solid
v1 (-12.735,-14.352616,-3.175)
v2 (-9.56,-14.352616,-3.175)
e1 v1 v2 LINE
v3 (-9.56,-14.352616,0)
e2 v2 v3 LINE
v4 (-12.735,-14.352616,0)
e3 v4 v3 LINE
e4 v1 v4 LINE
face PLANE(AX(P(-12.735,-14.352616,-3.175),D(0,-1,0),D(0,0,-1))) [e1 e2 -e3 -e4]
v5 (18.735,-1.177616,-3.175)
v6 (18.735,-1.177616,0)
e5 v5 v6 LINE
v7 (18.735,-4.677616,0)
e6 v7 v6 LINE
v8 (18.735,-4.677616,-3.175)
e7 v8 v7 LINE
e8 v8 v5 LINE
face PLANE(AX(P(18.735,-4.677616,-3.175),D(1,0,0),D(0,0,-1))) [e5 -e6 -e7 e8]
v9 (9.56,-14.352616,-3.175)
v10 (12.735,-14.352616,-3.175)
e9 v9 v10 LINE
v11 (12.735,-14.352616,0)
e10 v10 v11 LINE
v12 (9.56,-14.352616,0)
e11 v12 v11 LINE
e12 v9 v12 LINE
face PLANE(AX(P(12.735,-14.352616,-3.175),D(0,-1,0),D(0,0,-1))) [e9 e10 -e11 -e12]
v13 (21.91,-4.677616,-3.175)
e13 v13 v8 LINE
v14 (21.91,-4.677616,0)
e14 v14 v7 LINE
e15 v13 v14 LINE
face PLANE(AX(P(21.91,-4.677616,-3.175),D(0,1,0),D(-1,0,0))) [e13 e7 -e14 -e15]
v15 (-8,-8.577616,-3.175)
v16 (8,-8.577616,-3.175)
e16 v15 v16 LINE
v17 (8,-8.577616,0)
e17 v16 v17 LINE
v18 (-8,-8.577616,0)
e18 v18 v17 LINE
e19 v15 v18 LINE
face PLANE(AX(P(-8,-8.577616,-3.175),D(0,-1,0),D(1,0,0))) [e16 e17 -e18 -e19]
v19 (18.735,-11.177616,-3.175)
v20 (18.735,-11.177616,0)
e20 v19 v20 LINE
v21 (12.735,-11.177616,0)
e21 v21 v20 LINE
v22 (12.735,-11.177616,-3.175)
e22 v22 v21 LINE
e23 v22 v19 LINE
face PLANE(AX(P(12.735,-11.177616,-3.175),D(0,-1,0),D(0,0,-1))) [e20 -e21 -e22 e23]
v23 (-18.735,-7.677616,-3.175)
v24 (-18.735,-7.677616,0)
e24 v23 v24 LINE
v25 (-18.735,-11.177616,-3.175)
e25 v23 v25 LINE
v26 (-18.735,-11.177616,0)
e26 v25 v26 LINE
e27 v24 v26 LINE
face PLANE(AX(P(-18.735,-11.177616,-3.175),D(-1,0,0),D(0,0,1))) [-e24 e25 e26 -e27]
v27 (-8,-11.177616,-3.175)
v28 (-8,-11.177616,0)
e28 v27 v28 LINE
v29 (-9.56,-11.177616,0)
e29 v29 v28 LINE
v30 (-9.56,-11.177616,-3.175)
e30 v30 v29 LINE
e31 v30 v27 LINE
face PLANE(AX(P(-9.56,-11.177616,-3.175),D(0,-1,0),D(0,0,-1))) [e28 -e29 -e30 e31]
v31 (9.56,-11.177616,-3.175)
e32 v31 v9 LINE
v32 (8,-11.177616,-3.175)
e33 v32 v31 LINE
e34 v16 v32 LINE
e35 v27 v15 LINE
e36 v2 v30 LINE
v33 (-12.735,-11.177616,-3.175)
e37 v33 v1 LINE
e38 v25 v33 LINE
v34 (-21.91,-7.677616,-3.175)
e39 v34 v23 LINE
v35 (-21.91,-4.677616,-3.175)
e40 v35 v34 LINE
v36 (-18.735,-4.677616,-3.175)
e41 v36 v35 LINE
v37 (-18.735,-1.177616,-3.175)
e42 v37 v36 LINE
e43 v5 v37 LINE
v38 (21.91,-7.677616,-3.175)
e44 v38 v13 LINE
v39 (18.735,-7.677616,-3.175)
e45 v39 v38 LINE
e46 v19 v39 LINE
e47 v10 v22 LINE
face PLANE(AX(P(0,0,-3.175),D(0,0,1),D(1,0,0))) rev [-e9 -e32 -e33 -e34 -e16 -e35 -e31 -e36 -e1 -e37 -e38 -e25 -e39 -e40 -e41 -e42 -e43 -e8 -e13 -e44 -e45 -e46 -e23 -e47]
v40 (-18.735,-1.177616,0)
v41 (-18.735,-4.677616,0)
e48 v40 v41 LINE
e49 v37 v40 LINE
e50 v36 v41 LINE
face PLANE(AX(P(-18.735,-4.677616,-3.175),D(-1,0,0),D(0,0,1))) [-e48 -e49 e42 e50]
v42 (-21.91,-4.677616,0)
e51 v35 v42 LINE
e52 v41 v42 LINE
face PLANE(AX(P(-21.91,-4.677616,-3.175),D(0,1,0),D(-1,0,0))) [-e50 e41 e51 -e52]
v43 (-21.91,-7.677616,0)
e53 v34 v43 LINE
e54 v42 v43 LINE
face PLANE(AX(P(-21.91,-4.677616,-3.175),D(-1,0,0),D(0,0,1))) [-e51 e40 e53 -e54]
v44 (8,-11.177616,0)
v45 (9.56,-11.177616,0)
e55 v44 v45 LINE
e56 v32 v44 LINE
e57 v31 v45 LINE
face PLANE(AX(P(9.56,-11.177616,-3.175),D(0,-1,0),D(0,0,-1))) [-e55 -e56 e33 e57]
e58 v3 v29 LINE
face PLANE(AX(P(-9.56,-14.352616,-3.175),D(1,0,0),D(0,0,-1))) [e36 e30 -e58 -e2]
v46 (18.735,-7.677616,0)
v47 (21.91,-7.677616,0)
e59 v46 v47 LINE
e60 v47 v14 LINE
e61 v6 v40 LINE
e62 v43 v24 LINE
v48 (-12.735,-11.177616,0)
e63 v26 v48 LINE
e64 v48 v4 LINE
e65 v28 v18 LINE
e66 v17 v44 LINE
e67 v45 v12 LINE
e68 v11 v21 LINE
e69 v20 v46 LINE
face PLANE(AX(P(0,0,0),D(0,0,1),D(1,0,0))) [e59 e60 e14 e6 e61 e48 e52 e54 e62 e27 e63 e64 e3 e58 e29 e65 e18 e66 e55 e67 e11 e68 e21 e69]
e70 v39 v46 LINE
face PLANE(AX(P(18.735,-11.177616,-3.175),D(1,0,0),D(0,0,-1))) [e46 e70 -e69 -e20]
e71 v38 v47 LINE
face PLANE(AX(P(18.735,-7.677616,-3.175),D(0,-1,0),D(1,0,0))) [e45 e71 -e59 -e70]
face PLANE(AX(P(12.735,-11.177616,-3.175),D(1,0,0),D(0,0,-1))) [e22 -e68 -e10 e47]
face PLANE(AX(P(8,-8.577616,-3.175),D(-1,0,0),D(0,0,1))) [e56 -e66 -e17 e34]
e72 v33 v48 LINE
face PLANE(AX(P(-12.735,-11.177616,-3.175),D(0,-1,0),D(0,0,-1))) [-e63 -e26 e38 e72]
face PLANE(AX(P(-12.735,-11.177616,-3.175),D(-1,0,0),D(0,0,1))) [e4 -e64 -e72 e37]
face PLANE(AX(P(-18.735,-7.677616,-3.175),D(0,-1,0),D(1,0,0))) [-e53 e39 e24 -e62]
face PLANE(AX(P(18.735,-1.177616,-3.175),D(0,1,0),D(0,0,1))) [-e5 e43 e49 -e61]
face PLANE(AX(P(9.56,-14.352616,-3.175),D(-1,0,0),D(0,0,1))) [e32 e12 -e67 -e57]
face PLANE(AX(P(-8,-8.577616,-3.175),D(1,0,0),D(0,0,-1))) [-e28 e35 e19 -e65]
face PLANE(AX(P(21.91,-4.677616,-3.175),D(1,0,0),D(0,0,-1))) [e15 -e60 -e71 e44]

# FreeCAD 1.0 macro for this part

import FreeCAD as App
import Part
import Sketcher
from FreeCAD import Vector
Q = App.Units.Quantity

doc = App.newDocument("Part")
body = doc.addObject("PartDesign::Body", "Body")

sketch1 = body.newObject("Sketcher::SketchObject", "Sketch")
sketch1.AttachmentSupport = (doc.getObject("XY_Plane"), [""])
sketch1.MapMode = "FlatFace"
sketch1.addGeometry(Part.LineSegment(Vector(12.7, -14.4, 0), Vector(12.7, -11.2, 0)), False)
sketch1.addGeometry(Part.LineSegment(Vector(12.7, -11.2, 0), Vector(18.7, -11.2, 0)), False)
sketch1.addGeometry(Part.LineSegment(Vector(18.7, -11.2, 0), Vector(18.7, -7.7, 0)), False)
sketch1.addGeometry(Part.LineSegment(Vector(18.7, -7.7, 0), Vector(21.9, -7.7, 0)), False)
sketch1.addGeometry(Part.LineSegment(Vector(21.9, -7.7, 0), Vector(21.9, -4.7, 0)), False)
sketch1.addGeometry(Part.LineSegment(Vector(21.9, -4.7, 0), Vector(18.7, -4.7, 0)), False)
sketch1.addGeometry(Part.LineSegment(Vector(18.7, -4.7, 0), Vector(18.7, -1.2, 0)), False)
sketch1.addGeometry(Part.LineSegment(Vector(18.7, -1.2, 0), Vector(-18.7, -1.2, 0)), False)
sketch1.addGeometry(Part.LineSegment(Vector(-18.7, -1.2, 0), Vector(-18.7, -4.7, 0)), False)
sketch1.addGeometry(Part.LineSegment(Vector(-18.7, -4.7, 0), Vector(-21.9, -4.7, 0)), False)
sketch1.addGeometry(Part.LineSegment(Vector(-21.9, -4.7, 0), Vector(-21.9, -7.7, 0)), False)
sketch1.addGeometry(Part.LineSegment(Vector(-21.9, -7.7, 0), Vector(-18.7, -7.7, 0)), False)
sketch1.addGeometry(Part.LineSegment(Vector(-18.7, -7.7, 0), Vector(-18.7, -11.2, 0)), False)
sketch1.addGeometry(Part.LineSegment(Vector(-18.7, -11.2, 0), Vector(-12.7, -11.2, 0)), False)
sketch1.addGeometry(Part.LineSegment(Vector(-12.7, -11.2, 0), Vector(-12.7, -14.4, 0)), False)
sketch1.addGeometry(Part.LineSegment(Vector(-12.7, -14.4, 0), Vector(-9.6, -14.4, 0)), False)
sketch1.addGeometry(Part.LineSegment(Vector(-9.6, -14.4, 0), Vector(-9.6, -11.2, 0)), False)
sketch1.addGeometry(Part.LineSegment(Vector(-9.6, -11.2, 0), Vector(-8, -11.2, 0)), False)
sketch1.addGeometry(Part.LineSegment(Vector(-8, -11.2, 0), Vector(-8, -8.6, 0)), False)
sketch1.addGeometry(Part.LineSegment(Vector(-8, -8.6, 0), Vector(8, -8.6, 0)), False)
sketch1.addGeometry(Part.LineSegment(Vector(8, -8.6, 0), Vector(8, -11.2, 0)), False)
sketch1.addGeometry(Part.LineSegment(Vector(8, -11.2, 0), Vector(9.6, -11.2, 0)), False)
sketch1.addGeometry(Part.LineSegment(Vector(9.6, -11.2, 0), Vector(9.6, -14.4, 0)), False)
sketch1.addGeometry(Part.LineSegment(Vector(9.6, -14.4, 0), Vector(12.7, -14.4, 0)), False)
sketch1.addConstraint(Sketcher.Constraint("Coincident", 0, 2, 1, 1))
sketch1.addConstraint(Sketcher.Constraint("Coincident", 1, 2, 2, 1))
sketch1.addConstraint(Sketcher.Constraint("Coincident", 2, 2, 3, 1))
sketch1.addConstraint(Sketcher.Constraint("Coincident", 3, 2, 4, 1))
sketch1.addConstraint(Sketcher.Constraint("Coincident", 4, 2, 5, 1))
sketch1.addConstraint(Sketcher.Constraint("Coincident", 5, 2, 6, 1))
sketch1.addConstraint(Sketcher.Constraint("Coincident", 6, 2, 7, 1))
sketch1.addConstraint(Sketcher.Constraint("Coincident", 7, 2, 8, 1))
sketch1.addConstraint(Sketcher.Constraint("Coincident", 8, 2, 9, 1))
sketch1.addConstraint(Sketcher.Constraint("Coincident", 9, 2, 10, 1))
sketch1.addConstraint(Sketcher.Constraint("Coincident", 10, 2, 11, 1))
sketch1.addConstraint(Sketcher.Constraint("Coincident", 11, 2, 12, 1))
sketch1.addConstraint(Sketcher.Constraint("Coincident", 12, 2, 13, 1))
sketch1.addConstraint(Sketcher.Constraint("Coincident", 13, 2, 14, 1))
sketch1.addConstraint(Sketcher.Constraint("Coincident", 14, 2, 15, 1))
sketch1.addConstraint(Sketcher.Constraint("Coincident", 15, 2, 16, 1))
sketch1.addConstraint(Sketcher.Constraint("Coincident", 16, 2, 17, 1))
sketch1.addConstraint(Sketcher.Constraint("Coincident", 17, 2, 18, 1))
sketch1.addConstraint(Sketcher.Constraint("Coincident", 18, 2, 19, 1))
sketch1.addConstraint(Sketcher.Constraint("Coincident", 19, 2, 20, 1))
sketch1.addConstraint(Sketcher.Constraint("Coincident", 20, 2, 21, 1))
sketch1.addConstraint(Sketcher.Constraint("Coincident", 21, 2, 22, 1))
sketch1.addConstraint(Sketcher.Constraint("Coincident", 22, 2, 23, 1))
sketch1.addConstraint(Sketcher.Constraint("Coincident", 23, 2, 0, 1))
sketch1.addConstraint(Sketcher.Constraint("Vertical", 0))
sketch1.addConstraint(Sketcher.Constraint("Horizontal", 1))
sketch1.addConstraint(Sketcher.Constraint("Vertical", 2))
sketch1.addConstraint(Sketcher.Constraint("Horizontal", 3))
sketch1.addConstraint(Sketcher.Constraint("Vertical", 4))
sketch1.addConstraint(Sketcher.Constraint("Horizontal", 5))
sketch1.addConstraint(Sketcher.Constraint("Vertical", 6))
sketch1.addConstraint(Sketcher.Constraint("Horizontal", 7))
sketch1.addConstraint(Sketcher.Constraint("Vertical", 8))
sketch1.addConstraint(Sketcher.Constraint("Horizontal", 9))
sketch1.addConstraint(Sketcher.Constraint("Vertical", 10))
sketch1.addConstraint(Sketcher.Constraint("Horizontal", 11))
sketch1.addConstraint(Sketcher.Constraint("Vertical", 12))
sketch1.addConstraint(Sketcher.Constraint("Horizontal", 13))
sketch1.addConstraint(Sketcher.Constraint("Vertical", 14))
sketch1.addConstraint(Sketcher.Constraint("Horizontal", 15))
sketch1.addConstraint(Sketcher.Constraint("Vertical", 16))
sketch1.addConstraint(Sketcher.Constraint("Horizontal", 17))
sketch1.addConstraint(Sketcher.Constraint("Vertical", 18))
sketch1.addConstraint(Sketcher.Constraint("Horizontal", 19))
sketch1.addConstraint(Sketcher.Constraint("Vertical", 20))
sketch1.addConstraint(Sketcher.Constraint("Horizontal", 21))
sketch1.addConstraint(Sketcher.Constraint("Vertical", 22))
sketch1.addConstraint(Sketcher.Constraint("Horizontal", 23))
sketch1.addConstraint(Sketcher.Constraint("Symmetric", 5, 2, 8, 2, -2))
sketch1.addConstraint(Sketcher.Constraint("Symmetric", 3, 2, 10, 2, -2))
sketch1.addConstraint(Sketcher.Constraint("Symmetric", 1, 2, 12, 2, -2))
sketch1.addConstraint(Sketcher.Constraint("Symmetric", 17, 2, 20, 2, -2))
sketch1.addConstraint(Sketcher.Constraint("Symmetric", 15, 2, 22, 2, -2))
sketch1.addConstraint(Sketcher.Constraint("Horizontal", 13, 2, 16, 2))
sketch1.addConstraint(Sketcher.Constraint("Vertical", 2, 2, 5, 2))
sketch1.addConstraint(Sketcher.Constraint("Equal", 1, 13))
sketch1.addConstraint(Sketcher.Constraint("Equal", 11, 15))
sketch1.addConstraint(Sketcher.Constraint("Equal", 23, 0))
sketch1.addConstraint(Sketcher.Constraint("Equal", 2, 6))
sketch1.addConstraint(Sketcher.Constraint("DistanceX", 1, 1, 1, 2, Q("6 mm")))
sketch1.addConstraint(Sketcher.Constraint("DistanceX", 19, 1, 19, 2, Q("16 mm")))
sketch1.addConstraint(Sketcher.Constraint("DistanceY", 4, 1, 4, 2, Q("3 mm")))
sketch1.addConstraint(Sketcher.Constraint("DistanceY", 2, 1, 2, 2, Q("3.5 mm")))
sketch1.addConstraint(Sketcher.Constraint("DistanceY", 18, 1, 18, 2, Q("2.6 mm")))
sketch1.addConstraint(Sketcher.Constraint("DistanceX", 7, 2, 7, 1, Q("37.47 mm")))
sketch1.addConstraint(Sketcher.Constraint("DistanceX", 17, 1, 17, 2, Q("1.56 mm")))
sketch1.addConstraint(Sketcher.Constraint("DistanceY", 0, 2, -1, 1, Q("11.177616 mm")))
pad1 = body.newObject("PartDesign::Pad", "Pad")
pad1.Profile = sketch1
pad1.Length = 3.175
pad1.Reversed = True

doc.recompute()
